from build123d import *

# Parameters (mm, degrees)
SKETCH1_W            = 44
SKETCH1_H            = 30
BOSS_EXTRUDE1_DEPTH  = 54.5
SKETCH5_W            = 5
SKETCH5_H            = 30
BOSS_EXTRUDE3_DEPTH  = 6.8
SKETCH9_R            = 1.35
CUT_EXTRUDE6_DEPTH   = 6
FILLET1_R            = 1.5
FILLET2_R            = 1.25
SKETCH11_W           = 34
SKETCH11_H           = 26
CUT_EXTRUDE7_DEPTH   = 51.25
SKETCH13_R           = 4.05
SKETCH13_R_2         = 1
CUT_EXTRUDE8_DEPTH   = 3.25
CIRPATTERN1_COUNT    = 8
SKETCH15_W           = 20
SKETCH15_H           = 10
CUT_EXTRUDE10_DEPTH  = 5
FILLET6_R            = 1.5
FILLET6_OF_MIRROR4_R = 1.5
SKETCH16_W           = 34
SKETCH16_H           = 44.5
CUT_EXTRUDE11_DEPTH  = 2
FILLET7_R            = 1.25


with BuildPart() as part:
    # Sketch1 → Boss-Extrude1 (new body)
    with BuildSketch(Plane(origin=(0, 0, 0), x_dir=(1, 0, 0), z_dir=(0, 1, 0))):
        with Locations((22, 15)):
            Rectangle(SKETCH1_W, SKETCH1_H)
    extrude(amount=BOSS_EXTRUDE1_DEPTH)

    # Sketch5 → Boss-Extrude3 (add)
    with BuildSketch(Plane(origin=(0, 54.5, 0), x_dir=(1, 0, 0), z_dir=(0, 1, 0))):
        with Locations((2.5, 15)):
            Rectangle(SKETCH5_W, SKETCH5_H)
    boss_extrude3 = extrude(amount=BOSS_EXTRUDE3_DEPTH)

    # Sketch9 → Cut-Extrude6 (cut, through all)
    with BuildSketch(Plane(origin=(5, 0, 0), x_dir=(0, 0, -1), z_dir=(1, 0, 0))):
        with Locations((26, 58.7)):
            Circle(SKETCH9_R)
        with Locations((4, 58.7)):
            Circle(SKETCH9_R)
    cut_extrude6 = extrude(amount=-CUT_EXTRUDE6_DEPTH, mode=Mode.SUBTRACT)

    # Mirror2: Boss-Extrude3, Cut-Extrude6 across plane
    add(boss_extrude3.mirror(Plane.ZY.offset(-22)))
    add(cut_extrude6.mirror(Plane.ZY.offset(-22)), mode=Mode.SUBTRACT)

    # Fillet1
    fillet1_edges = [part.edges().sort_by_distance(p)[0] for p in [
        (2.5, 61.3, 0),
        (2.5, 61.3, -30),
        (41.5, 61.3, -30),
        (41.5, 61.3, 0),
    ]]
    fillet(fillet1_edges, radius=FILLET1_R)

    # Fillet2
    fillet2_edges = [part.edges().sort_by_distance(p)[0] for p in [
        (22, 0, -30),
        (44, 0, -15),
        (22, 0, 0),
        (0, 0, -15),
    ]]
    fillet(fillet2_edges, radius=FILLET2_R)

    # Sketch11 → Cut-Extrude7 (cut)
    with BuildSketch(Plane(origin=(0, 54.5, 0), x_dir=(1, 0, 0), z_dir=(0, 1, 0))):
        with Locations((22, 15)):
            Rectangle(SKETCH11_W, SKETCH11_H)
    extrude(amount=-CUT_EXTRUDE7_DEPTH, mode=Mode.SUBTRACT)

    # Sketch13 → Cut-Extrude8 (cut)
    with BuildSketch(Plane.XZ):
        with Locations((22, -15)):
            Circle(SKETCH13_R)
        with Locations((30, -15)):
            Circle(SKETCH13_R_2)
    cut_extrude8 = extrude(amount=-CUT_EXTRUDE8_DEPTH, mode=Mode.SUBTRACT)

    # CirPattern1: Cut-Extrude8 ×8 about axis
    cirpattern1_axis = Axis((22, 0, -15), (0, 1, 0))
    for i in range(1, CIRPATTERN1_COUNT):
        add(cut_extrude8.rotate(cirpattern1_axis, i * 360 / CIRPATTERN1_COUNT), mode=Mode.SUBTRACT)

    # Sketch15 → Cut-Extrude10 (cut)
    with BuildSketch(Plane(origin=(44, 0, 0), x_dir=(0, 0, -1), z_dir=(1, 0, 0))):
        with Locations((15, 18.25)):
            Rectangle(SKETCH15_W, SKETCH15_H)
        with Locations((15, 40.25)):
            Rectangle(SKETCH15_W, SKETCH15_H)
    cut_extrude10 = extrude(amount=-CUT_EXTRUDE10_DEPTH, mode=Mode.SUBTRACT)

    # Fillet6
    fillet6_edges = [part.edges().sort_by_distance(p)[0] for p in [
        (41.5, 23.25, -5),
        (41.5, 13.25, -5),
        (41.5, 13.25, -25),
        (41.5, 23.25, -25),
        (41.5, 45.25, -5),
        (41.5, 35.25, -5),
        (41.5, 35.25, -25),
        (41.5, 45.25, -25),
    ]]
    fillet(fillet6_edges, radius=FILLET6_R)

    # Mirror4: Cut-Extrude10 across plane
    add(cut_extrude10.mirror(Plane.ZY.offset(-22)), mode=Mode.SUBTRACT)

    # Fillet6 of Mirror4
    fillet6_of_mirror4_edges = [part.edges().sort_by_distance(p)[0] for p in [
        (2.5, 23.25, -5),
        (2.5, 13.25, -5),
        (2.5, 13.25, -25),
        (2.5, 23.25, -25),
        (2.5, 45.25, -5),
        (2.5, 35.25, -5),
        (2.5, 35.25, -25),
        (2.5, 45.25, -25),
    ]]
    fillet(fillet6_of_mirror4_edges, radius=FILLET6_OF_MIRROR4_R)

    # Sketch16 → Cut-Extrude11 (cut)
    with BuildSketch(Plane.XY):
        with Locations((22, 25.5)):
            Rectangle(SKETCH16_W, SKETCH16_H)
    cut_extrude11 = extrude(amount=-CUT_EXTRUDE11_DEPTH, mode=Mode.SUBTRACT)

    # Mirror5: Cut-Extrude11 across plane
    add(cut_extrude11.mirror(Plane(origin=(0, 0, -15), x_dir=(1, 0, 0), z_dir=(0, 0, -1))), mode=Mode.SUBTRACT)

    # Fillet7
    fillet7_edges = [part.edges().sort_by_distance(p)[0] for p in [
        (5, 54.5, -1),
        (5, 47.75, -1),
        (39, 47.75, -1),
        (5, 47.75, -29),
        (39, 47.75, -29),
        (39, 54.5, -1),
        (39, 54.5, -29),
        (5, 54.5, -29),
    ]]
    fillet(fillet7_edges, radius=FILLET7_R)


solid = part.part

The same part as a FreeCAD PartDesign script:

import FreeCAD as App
import Part
import Sketcher
from FreeCAD import Vector
Q = App.Units.Quantity


def edges_at(feature, points):
    """Names of the edges that pass closest to the given points."""
    edges = feature.Shape.Edges
    near = lambda p: min(range(len(edges)), key=lambda i: edges[i].distToShape(Part.Vertex(*p))[0])
    return sorted({f"Edge{near(p) + 1}" for p in points})

doc = App.newDocument("Part")
body = doc.addObject("PartDesign::Body", "Body")

sketch1 = body.newObject("Sketcher::SketchObject", "Sketch")
sketch1.AttachmentSupport = (doc.getObject("XZ_Plane"), [""])
sketch1.MapMode = "FlatFace"
sketch1.addGeometry([
    Part.LineSegment(Vector(0, -30, 0), Vector(0, 0, 0)),
    Part.LineSegment(Vector(0, 0, 0), Vector(44, 0, 0)),
    Part.LineSegment(Vector(44, 0, 0), Vector(44, -30, 0)),
    Part.LineSegment(Vector(44, -30, 0), Vector(0, -30, 0)),
], False)
sketch1.addConstraint([
    Sketcher.Constraint("Coincident", 0, 2, 1, 1),
    Sketcher.Constraint("Coincident", 1, 2, 2, 1),
    Sketcher.Constraint("Coincident", 2, 2, 3, 1),
    Sketcher.Constraint("Coincident", 3, 2, 0, 1),
    Sketcher.Constraint("Vertical", 0),
    Sketcher.Constraint("Horizontal", 1),
    Sketcher.Constraint("Vertical", 2),
    Sketcher.Constraint("Horizontal", 3),
    Sketcher.Constraint("Coincident", 0, 2, -1, 1),
    Sketcher.Constraint("DistanceX", 1, 1, 1, 2, Q("44 mm")),
    Sketcher.Constraint("DistanceY", 0, 1, 0, 2, Q("30 mm")),
])
pad1 = body.newObject("PartDesign::Pad", "Pad")
pad1.Profile = sketch1
pad1.Length = 54.5
pad1.Reversed = True

sketch2 = body.newObject("Sketcher::SketchObject", "Sketch001")
sketch2.AttachmentSupport = (doc.getObject("XZ_Plane"), [""])
sketch2.MapMode = "FlatFace"
sketch2.AttachmentOffset = App.Placement(Vector(0, 0, -54.5), App.Rotation())
sketch2.addGeometry([
    Part.LineSegment(Vector(0, -30, 0), Vector(0, 0, 0)),
    Part.LineSegment(Vector(0, 0, 0), Vector(5, 0, 0)),
    Part.LineSegment(Vector(5, 0, 0), Vector(5, -30, 0)),
    Part.LineSegment(Vector(5, -30, 0), Vector(0, -30, 0)),
], False)
sketch2.addConstraint([
    Sketcher.Constraint("Coincident", 0, 2, 1, 1),
    Sketcher.Constraint("Coincident", 1, 2, 2, 1),
    Sketcher.Constraint("Coincident", 2, 2, 3, 1),
    Sketcher.Constraint("Coincident", 3, 2, 0, 1),
    Sketcher.Constraint("Vertical", 0),
    Sketcher.Constraint("Horizontal", 1),
    Sketcher.Constraint("Vertical", 2),
    Sketcher.Constraint("Horizontal", 3),
    Sketcher.Constraint("Coincident", 0, 2, -1, 1),
    Sketcher.Constraint("DistanceX", 1, 1, 1, 2, Q("5 mm")),
    Sketcher.Constraint("DistanceY", 0, 1, 0, 2, Q("30 mm")),
])
pad2 = body.newObject("PartDesign::Pad", "Pad001")
pad2.Profile = sketch2
pad2.Length = 6.8
pad2.Reversed = True

sketch3 = body.newObject("Sketcher::SketchObject", "Sketch002")
sketch3.AttachmentSupport = (doc.getObject("YZ_Plane"), [""])
sketch3.MapMode = "FlatFace"
sketch3.AttachmentOffset = App.Placement(Vector(0, 0, 5), App.Rotation())
sketch3.addGeometry([
    Part.Circle(Vector(58.7, -26, 0), Vector(0, 0, 1), 1.4),
    Part.Circle(Vector(58.7, -4, 0), Vector(0, 0, 1), 1.4),
], False)
sketch3.addConstraint([
    Sketcher.Constraint("Equal", 0, 1),
    Sketcher.Constraint("Vertical", 0, 3, 1, 3),
    Sketcher.Constraint("Diameter", 0, Q("2.7 mm")),
    Sketcher.Constraint("DistanceY", 0, 3, -1, 1, Q("26 mm")),
    Sketcher.Constraint("DistanceY", 1, 3, -1, 1, Q("4 mm")),
    Sketcher.Constraint("DistanceX", -1, 1, 0, 3, Q("58.7 mm")),
])
pocket1 = body.newObject("PartDesign::Pocket", "Pocket")
pocket1.Profile = sketch3
pocket1.Type = "ThroughAll"
doc.recompute()

datumplane = body.newObject("PartDesign::Plane", "DatumPlane")
datumplane.AttachmentSupport = (doc.getObject("YZ_Plane"), [""])
datumplane.MapMode = "FlatFace"
datumplane.AttachmentOffset = App.Placement(Vector(0, 0, 22), App.Rotation())
mirrored = body.newObject("PartDesign::Mirrored", "Mirrored")
mirrored.Originals = [pad2, pocket1]
mirrored.MirrorPlane = (datumplane, [""])
body.Tip = mirrored
doc.recompute()

fillet = body.newObject("PartDesign::Fillet", "Fillet")
fillet.Base = (mirrored, edges_at(mirrored, [
    (2.5, 61.3, 0),
    (2.5, 61.3, -30),
    (41.5, 61.3, -30),
    (41.5, 61.3, 0),
]))
fillet.Radius = 1.5
doc.recompute()

fillet2 = body.newObject("PartDesign::Fillet", "Fillet001")
fillet2.Base = (fillet, edges_at(fillet, [
    (22, 0, -30),
    (44, 0, -15),
    (22, 0, 0),
    (0, 0, -15),
]))
fillet2.Radius = 1.25

sketch4 = body.newObject("Sketcher::SketchObject", "Sketch003")
sketch4.AttachmentSupport = (doc.getObject("XZ_Plane"), [""])
sketch4.MapMode = "FlatFace"
sketch4.AttachmentOffset = App.Placement(Vector(0, 0, -54.5), App.Rotation())
sketch4.addGeometry([
    Part.LineSegment(Vector(5, -28, 0), Vector(5, -2, 0)),
    Part.LineSegment(Vector(5, -2, 0), Vector(39, -2, 0)),
    Part.LineSegment(Vector(39, -2, 0), Vector(39, -28, 0)),
    Part.LineSegment(Vector(39, -28, 0), Vector(5, -28, 0)),
], False)
sketch4.addConstraint([
    Sketcher.Constraint("Coincident", 0, 2, 1, 1),
    Sketcher.Constraint("Coincident", 1, 2, 2, 1),
    Sketcher.Constraint("Coincident", 2, 2, 3, 1),
    Sketcher.Constraint("Coincident", 3, 2, 0, 1),
    Sketcher.Constraint("Vertical", 0),
    Sketcher.Constraint("Horizontal", 1),
    Sketcher.Constraint("Vertical", 2),
    Sketcher.Constraint("Horizontal", 3),
    Sketcher.Constraint("DistanceX", 1, 1, 1, 2, Q("34 mm")),
    Sketcher.Constraint("DistanceY", 0, 1, 0, 2, Q("26 mm")),
    Sketcher.Constraint("DistanceX", -1, 1, 0, 2, Q("5 mm")),
    Sketcher.Constraint("DistanceY", 0, 2, -1, 1, Q("2 mm")),
])
pocket2 = body.newObject("PartDesign::Pocket", "Pocket001")
pocket2.Profile = sketch4
pocket2.Length = 51.25
pocket2.Reversed = True

sketch5 = body.newObject("Sketcher::SketchObject", "Sketch004")
sketch5.AttachmentSupport = (doc.getObject("XZ_Plane"), [""])
sketch5.MapMode = "FlatFace"
sketch5.addGeometry([
    Part.Circle(Vector(22, -15, 0), Vector(0, 0, 1), 4),
    Part.Circle(Vector(30, -15, 0), Vector(0, 0, 1), 1),
], False)
sketch5.addConstraint([
    Sketcher.Constraint("Horizontal", 0, 3, 1, 3),
    Sketcher.Constraint("Diameter", 1, Q("2 mm")),
    Sketcher.Constraint("Diameter", 0, Q("8.1 mm")),
    Sketcher.Constraint("DistanceX", -1, 1, 0, 3, Q("22 mm")),
    Sketcher.Constraint("DistanceY", 0, 3, -1, 1, Q("15 mm")),
    Sketcher.Constraint("DistanceX", -1, 1, 1, 3, Q("30 mm")),
])
pocket3 = body.newObject("PartDesign::Pocket", "Pocket002")
pocket3.Profile = sketch5
pocket3.Length = 3.25
doc.recompute()

datumline = body.newObject("PartDesign::Line", "DatumLine")
datumline.Placement = App.Placement(Vector(22, 0, -15), App.Rotation(Vector(0, 0, 1), Vector(0, 1, 0)))
polarpattern = body.newObject("PartDesign::PolarPattern", "PolarPattern")
polarpattern.Originals = [pocket3]
polarpattern.Axis = (datumline, [""])
polarpattern.Angle = 360
polarpattern.Occurrences = 8
body.Tip = polarpattern

sketch6 = body.newObject("Sketcher::SketchObject", "Sketch005")
sketch6.AttachmentSupport = (doc.getObject("YZ_Plane"), [""])
sketch6.MapMode = "FlatFace"
sketch6.AttachmentOffset = App.Placement(Vector(0, 0, 44), App.Rotation())
sketch6.addGeometry([
    Part.LineSegment(Vector(23, -5, 0), Vector(13, -5, 0)),
    Part.LineSegment(Vector(13, -5, 0), Vector(13, -25, 0)),
    Part.LineSegment(Vector(13, -25, 0), Vector(23, -25, 0)),
    Part.LineSegment(Vector(23, -25, 0), Vector(23, -5, 0)),
    Part.LineSegment(Vector(45, -5, 0), Vector(35, -5, 0)),
    Part.LineSegment(Vector(35, -5, 0), Vector(35, -25, 0)),
    Part.LineSegment(Vector(35, -25, 0), Vector(45, -25, 0)),
    Part.LineSegment(Vector(45, -25, 0), Vector(45, -5, 0)),
], False)
sketch6.addConstraint([
    Sketcher.Constraint("Coincident", 0, 2, 1, 1),
    Sketcher.Constraint("Coincident", 1, 2, 2, 1),
    Sketcher.Constraint("Coincident", 2, 2, 3, 1),
    Sketcher.Constraint("Coincident", 3, 2, 0, 1),
    Sketcher.Constraint("Coincident", 4, 2, 5, 1),
    Sketcher.Constraint("Coincident", 5, 2, 6, 1),
    Sketcher.Constraint("Coincident", 6, 2, 7, 1),
    Sketcher.Constraint("Coincident", 7, 2, 4, 1),
    Sketcher.Constraint("Horizontal", 0),
    Sketcher.Constraint("Vertical", 1),
    Sketcher.Constraint("Horizontal", 2),
    Sketcher.Constraint("Vertical", 3),
    Sketcher.Constraint("Horizontal", 4),
    Sketcher.Constraint("Vertical", 5),
    Sketcher.Constraint("Horizontal", 6),
    Sketcher.Constraint("Vertical", 7),
    Sketcher.Constraint("Horizontal", 3, 2, 4, 2),
    Sketcher.Constraint("Horizontal", 2, 2, 5, 2),
    Sketcher.Constraint("Equal", 2, 4),
    Sketcher.Constraint("DistanceX", 0, 2, 0, 1, Q("10 mm")),
    Sketcher.Constraint("DistanceY", 1, 2, 1, 1, Q("20 mm")),
    Sketcher.Constraint("DistanceY", 0, 2, -1, 1, Q("5 mm")),
    Sketcher.Constraint("DistanceX", 3, 2, 4, 2, Q("12 mm")),
    Sketcher.Constraint("DistanceX", -1, 1, 0, 2, Q("13.25 mm")),
])
pocket4 = body.newObject("PartDesign::Pocket", "Pocket003")
pocket4.Profile = sketch6
pocket4.Length = 5
doc.recompute()

fillet3 = body.newObject("PartDesign::Fillet", "Fillet002")
fillet3.Base = (pocket4, edges_at(pocket4, [
    (41.5, 23.25, -5),
    (41.5, 13.25, -5),
    (41.5, 13.25, -25),
    (41.5, 23.25, -25),
    (41.5, 45.25, -5),
    (41.5, 35.25, -5),
    (41.5, 35.25, -25),
    (41.5, 45.25, -25),
]))
fillet3.Radius = 1.5
doc.recompute()

datumplane2 = body.newObject("PartDesign::Plane", "DatumPlane001")
datumplane2.AttachmentSupport = (doc.getObject("YZ_Plane"), [""])
datumplane2.MapMode = "FlatFace"
datumplane2.AttachmentOffset = App.Placement(Vector(0, 0, 22), App.Rotation())
mirrored2 = body.newObject("PartDesign::Mirrored", "Mirrored001")
mirrored2.Originals = [pocket4]
mirrored2.MirrorPlane = (datumplane2, [""])
body.Tip = mirrored2
doc.recompute()

fillet4 = body.newObject("PartDesign::Fillet", "Fillet003")
fillet4.Base = (mirrored2, edges_at(mirrored2, [
    (2.5, 23.25, -5),
    (2.5, 13.25, -5),
    (2.5, 13.25, -25),
    (2.5, 23.25, -25),
    (2.5, 45.25, -5),
    (2.5, 35.25, -5),
    (2.5, 35.25, -25),
    (2.5, 45.25, -25),
]))
fillet4.Radius = 1.5

sketch7 = body.newObject("Sketcher::SketchObject", "Sketch006")
sketch7.AttachmentSupport = (doc.getObject("XY_Plane"), [""])
sketch7.MapMode = "FlatFace"
sketch7.addGeometry([
    Part.LineSegment(Vector(5, 48, 0), Vector(5, 3, 0)),
    Part.LineSegment(Vector(5, 3, 0), Vector(39, 3, 0)),
    Part.LineSegment(Vector(39, 3, 0), Vector(39, 48, 0)),
    Part.LineSegment(Vector(39, 48, 0), Vector(5, 48, 0)),
], False)
sketch7.addConstraint([
    Sketcher.Constraint("Coincident", 0, 2, 1, 1),
    Sketcher.Constraint("Coincident", 1, 2, 2, 1),
    Sketcher.Constraint("Coincident", 2, 2, 3, 1),
    Sketcher.Constraint("Coincident", 3, 2, 0, 1),
    Sketcher.Constraint("Vertical", 0),
    Sketcher.Constraint("Horizontal", 1),
    Sketcher.Constraint("Vertical", 2),
    Sketcher.Constraint("Horizontal", 3),
    Sketcher.Constraint("DistanceX", 1, 1, 1, 2, Q("34 mm")),
    Sketcher.Constraint("DistanceY", 0, 2, 0, 1, Q("44.5 mm")),
    Sketcher.Constraint("DistanceX", -1, 1, 0, 2, Q("5 mm")),
    Sketcher.Constraint("DistanceY", -1, 1, 0, 2, Q("3.25 mm")),
])
pocket5 = body.newObject("PartDesign::Pocket", "Pocket004")
pocket5.Profile = sketch7
pocket5.Length = 2
doc.recompute()

datumplane3 = body.newObject("PartDesign::Plane", "DatumPlane002")
datumplane3.AttachmentSupport = (doc.getObject("XY_Plane"), [""])
datumplane3.MapMode = "FlatFace"
datumplane3.AttachmentOffset = App.Placement(Vector(0, 0, -15), App.Rotation())
mirrored3 = body.newObject("PartDesign::Mirrored", "Mirrored002")
mirrored3.Originals = [pocket5]
mirrored3.MirrorPlane = (datumplane3, [""])
body.Tip = mirrored3
doc.recompute()

fillet5 = body.newObject("PartDesign::Fillet", "Fillet004")
fillet5.Base = (mirrored3, edges_at(mirrored3, [
    (5, 54.5, -1),
    (5, 47.75, -1),
    (39, 47.75, -1),
    (5, 47.75, -29),
    (39, 47.75, -29),
    (39, 54.5, -1),
    (39, 54.5, -29),
    (5, 54.5, -29),
]))
fillet5.Radius = 1.25

doc.recompute()
